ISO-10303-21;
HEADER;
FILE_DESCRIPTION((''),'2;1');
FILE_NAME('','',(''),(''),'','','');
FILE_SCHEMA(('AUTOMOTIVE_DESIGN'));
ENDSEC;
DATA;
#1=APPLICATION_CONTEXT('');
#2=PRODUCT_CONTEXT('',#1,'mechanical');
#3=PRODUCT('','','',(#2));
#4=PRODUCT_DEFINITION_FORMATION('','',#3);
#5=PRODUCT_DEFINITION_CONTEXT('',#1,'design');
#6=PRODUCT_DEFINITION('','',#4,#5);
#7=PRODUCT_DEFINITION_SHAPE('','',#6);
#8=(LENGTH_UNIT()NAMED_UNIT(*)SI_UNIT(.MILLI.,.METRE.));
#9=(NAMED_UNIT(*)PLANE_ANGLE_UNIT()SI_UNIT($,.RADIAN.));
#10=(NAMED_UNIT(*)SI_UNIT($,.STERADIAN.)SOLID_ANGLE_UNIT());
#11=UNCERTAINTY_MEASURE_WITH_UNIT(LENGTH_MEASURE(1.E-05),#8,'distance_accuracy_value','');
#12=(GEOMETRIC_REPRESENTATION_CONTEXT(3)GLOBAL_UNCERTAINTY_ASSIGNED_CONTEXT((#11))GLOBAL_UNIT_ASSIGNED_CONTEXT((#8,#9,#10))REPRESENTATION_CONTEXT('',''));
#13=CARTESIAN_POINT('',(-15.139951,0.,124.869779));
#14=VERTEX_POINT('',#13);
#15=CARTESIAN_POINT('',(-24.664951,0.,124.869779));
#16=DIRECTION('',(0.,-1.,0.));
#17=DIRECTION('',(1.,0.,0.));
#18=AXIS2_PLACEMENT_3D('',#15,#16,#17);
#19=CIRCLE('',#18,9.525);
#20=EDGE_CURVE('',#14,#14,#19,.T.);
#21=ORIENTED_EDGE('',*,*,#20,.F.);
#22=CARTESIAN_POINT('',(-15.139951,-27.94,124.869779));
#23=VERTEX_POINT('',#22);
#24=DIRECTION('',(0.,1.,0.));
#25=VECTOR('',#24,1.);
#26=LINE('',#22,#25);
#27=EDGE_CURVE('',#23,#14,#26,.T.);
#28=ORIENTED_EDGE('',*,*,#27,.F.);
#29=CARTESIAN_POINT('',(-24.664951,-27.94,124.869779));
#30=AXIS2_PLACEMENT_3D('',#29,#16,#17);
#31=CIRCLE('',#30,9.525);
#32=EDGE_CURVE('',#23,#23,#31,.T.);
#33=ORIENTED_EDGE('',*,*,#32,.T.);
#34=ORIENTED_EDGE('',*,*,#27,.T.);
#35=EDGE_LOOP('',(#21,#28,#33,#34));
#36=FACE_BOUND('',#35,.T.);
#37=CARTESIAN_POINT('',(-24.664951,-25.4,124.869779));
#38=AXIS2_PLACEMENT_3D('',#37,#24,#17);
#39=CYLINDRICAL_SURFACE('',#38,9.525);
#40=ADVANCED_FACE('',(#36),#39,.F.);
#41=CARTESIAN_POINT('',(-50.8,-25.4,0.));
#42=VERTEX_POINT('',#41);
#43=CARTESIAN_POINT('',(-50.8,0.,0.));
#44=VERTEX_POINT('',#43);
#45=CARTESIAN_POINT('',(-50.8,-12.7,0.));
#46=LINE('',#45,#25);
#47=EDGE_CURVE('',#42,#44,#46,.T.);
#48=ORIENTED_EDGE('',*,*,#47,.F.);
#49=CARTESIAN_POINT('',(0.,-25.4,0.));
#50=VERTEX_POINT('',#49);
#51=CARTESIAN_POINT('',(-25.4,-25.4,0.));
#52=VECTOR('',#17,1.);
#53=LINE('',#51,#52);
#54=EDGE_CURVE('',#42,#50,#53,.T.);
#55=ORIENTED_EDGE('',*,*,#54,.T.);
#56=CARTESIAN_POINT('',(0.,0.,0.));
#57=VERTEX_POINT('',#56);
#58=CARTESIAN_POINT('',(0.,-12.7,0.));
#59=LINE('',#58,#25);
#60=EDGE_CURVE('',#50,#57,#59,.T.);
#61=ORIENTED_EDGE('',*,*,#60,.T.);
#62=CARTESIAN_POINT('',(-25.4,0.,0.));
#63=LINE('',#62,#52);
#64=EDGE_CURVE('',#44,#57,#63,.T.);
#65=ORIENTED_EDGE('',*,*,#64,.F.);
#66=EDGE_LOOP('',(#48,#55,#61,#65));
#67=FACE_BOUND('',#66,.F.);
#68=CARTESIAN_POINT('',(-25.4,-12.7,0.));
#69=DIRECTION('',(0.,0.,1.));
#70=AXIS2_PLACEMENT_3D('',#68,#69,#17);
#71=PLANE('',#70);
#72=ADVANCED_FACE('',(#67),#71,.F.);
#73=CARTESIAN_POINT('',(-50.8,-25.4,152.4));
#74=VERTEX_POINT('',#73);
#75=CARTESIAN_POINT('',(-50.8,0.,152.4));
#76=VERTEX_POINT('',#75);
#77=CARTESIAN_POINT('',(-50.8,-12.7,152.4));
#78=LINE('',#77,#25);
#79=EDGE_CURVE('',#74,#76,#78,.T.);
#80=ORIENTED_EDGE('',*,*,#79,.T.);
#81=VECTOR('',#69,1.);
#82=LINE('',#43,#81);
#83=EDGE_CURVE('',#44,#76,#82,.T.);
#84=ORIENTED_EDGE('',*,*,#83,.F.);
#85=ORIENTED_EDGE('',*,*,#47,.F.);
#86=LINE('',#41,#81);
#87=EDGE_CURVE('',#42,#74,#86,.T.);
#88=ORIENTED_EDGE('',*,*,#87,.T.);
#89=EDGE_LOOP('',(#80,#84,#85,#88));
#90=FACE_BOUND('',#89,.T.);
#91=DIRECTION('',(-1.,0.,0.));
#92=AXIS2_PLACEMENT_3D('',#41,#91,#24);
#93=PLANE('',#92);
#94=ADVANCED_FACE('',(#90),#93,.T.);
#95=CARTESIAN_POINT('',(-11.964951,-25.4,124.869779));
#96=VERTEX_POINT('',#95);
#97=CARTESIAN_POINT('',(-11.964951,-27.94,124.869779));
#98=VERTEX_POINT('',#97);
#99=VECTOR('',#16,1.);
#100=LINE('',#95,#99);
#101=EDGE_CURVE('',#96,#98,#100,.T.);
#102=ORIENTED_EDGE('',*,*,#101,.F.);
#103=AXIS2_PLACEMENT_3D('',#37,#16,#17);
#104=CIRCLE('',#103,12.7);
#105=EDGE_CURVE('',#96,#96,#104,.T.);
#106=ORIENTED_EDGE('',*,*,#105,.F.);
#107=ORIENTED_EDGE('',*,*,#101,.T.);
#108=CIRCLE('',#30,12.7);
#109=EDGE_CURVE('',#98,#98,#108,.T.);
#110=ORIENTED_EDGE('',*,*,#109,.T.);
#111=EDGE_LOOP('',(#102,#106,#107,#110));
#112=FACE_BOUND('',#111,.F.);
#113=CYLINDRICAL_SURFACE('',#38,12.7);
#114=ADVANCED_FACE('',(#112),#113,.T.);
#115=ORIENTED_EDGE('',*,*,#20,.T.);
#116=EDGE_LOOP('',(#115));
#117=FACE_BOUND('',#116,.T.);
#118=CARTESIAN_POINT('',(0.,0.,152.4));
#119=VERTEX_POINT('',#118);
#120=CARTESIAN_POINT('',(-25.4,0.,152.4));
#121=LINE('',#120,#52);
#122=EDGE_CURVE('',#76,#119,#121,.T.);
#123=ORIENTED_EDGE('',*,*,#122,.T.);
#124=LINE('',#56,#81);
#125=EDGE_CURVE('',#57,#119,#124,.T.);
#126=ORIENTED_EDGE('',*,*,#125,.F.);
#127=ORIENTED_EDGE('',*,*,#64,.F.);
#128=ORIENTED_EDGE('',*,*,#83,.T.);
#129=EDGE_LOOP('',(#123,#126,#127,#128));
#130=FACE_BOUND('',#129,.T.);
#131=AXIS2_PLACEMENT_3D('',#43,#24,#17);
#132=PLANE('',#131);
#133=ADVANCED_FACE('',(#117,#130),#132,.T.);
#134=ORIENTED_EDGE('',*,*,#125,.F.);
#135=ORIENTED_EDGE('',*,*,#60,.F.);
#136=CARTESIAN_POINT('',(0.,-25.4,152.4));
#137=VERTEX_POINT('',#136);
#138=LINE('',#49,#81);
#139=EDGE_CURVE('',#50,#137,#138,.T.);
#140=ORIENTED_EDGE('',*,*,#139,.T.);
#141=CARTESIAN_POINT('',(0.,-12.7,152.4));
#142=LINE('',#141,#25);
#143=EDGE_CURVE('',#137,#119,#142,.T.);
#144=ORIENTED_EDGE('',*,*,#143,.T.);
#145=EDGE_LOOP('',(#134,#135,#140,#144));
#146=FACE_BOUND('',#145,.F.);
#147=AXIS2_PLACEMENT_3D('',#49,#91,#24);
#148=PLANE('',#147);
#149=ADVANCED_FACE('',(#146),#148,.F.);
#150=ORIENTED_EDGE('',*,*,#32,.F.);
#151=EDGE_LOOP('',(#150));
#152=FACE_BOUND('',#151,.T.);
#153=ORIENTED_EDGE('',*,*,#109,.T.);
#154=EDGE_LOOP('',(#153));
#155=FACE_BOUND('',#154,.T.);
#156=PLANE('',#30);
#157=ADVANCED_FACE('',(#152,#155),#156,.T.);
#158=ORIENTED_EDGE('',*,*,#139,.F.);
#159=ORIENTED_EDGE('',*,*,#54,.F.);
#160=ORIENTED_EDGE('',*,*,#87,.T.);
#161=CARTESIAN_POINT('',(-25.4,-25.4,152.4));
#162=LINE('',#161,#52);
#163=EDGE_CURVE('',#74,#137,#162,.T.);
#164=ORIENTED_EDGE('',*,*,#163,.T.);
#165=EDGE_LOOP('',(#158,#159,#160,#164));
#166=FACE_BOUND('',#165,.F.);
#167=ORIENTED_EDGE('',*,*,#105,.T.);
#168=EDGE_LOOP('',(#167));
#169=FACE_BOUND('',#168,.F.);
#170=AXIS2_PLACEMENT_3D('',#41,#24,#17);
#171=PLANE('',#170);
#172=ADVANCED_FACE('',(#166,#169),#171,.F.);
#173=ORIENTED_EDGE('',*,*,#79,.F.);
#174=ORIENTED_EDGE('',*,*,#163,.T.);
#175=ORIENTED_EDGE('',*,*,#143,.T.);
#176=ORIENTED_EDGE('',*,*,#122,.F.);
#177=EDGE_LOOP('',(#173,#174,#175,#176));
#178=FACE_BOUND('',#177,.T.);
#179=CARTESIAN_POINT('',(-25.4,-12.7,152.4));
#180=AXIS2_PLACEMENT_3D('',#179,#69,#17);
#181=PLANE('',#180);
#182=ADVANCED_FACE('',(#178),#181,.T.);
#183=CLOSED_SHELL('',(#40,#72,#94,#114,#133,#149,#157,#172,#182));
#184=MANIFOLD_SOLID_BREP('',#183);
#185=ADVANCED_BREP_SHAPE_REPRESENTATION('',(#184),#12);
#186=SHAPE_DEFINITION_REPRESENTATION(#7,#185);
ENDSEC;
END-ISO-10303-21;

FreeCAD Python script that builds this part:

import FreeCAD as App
import Part
import Sketcher

V = App.Vector
Q = App.Units.Quantity


def add_polygon(sketch, points):
    """Adds a closed chain of lines whose ends are joined by coincident constraints."""
    first, n = sketch.GeometryCount, len(points)
    for a, b in zip(points, points[1:] + points[:1]):
        sketch.addGeometry(Part.LineSegment(App.Vector(*a, 0), App.Vector(*b, 0)), False)
    for i in range(n):
        sketch.addConstraint(Sketcher.Constraint("Coincident", first + i, 2, first + (i + 1) % n, 1))

doc = App.newDocument("Part")
body = doc.addObject("PartDesign::Body", "Body")

# Sketch on XY plane
sketch1 = body.newObject("Sketcher::SketchObject", "Sketch")
sketch1.AttachmentSupport = (doc.getObject("XY_Plane"), [""])
sketch1.MapMode = "FlatFace"
add_polygon(sketch1, [(-51, 0), (-51, -25), (0, -25), (0, 0)])  # lines 0-3
sketch1.addConstraint(Sketcher.Constraint("Vertical", 0))
sketch1.addConstraint(Sketcher.Constraint("Horizontal", 1))
sketch1.addConstraint(Sketcher.Constraint("Vertical", 2))
sketch1.addConstraint(Sketcher.Constraint("Horizontal", 3))
sketch1.addConstraint(Sketcher.Constraint("Coincident", 2, 2, -1, 1))
sketch1.addConstraint(Sketcher.Constraint("DistanceX", 1, 1, 1, 2, Q("2 in")))
sketch1.addConstraint(Sketcher.Constraint("DistanceY", 0, 2, 0, 1, Q("1 in")))
pad1 = body.newObject("PartDesign::Pad", "Pad")
pad1.Profile = sketch1
pad1.Length = Q("6 in")

# Sketch on XZ plane
sketch2 = body.newObject("Sketcher::SketchObject", "Sketch001")
sketch2.AttachmentSupport = (doc.getObject("XZ_Plane"), [""])
sketch2.MapMode = "FlatFace"
sketch2.AttachmentOffset = App.Placement(V(0, 0, 1 * 25.4), App.Rotation())
sketch2.addGeometry(Part.Circle(V(-25, 125, 0), V(0, 0, 1), 10), False)
sketch2.addConstraint(Sketcher.Constraint("Diameter", 0, Q("0.75 in")))
sketch2.addConstraint(Sketcher.Constraint("DistanceX", 0, 3, -1, 1, Q("24.664951 mm")))
sketch2.addConstraint(Sketcher.Constraint("DistanceY", -1, 1, 0, 3, Q("124.869779 mm")))
pocket1 = body.newObject("PartDesign::Pocket", "Pocket")
pocket1.Profile = sketch2
pocket1.Length = Q("1 in")

# Sketch on XZ plane
sketch3 = body.newObject("Sketcher::SketchObject", "Sketch002")
sketch3.AttachmentSupport = (doc.getObject("XZ_Plane"), [""])
sketch3.MapMode = "FlatFace"
sketch3.AttachmentOffset = App.Placement(V(0, 0, 1 * 25.4), App.Rotation())
sketch3.addGeometry(Part.Circle(V(-25, 125, 0), V(0, 0, 1), 13), False)
sketch3.addGeometry(Part.Circle(V(-25, 125, 0), V(0, 0, 1), 10), False)
sketch3.addConstraint(Sketcher.Constraint("Coincident", 1, 3, 0, 3))
sketch3.addConstraint(Sketcher.Constraint("Diameter", 0, Q("1 in")))
sketch3.addConstraint(Sketcher.Constraint("Diameter", 1, Q("0.75 in")))
sketch3.addConstraint(Sketcher.Constraint("DistanceX", 0, 3, -1, 1, Q("24.664951 mm")))
sketch3.addConstraint(Sketcher.Constraint("DistanceY", -1, 1, 0, 3, Q("124.869779 mm")))
pad2 = body.newObject("PartDesign::Pad", "Pad001")
pad2.Profile = sketch3
pad2.Length = Q("0.1 in")

doc.recompute()
